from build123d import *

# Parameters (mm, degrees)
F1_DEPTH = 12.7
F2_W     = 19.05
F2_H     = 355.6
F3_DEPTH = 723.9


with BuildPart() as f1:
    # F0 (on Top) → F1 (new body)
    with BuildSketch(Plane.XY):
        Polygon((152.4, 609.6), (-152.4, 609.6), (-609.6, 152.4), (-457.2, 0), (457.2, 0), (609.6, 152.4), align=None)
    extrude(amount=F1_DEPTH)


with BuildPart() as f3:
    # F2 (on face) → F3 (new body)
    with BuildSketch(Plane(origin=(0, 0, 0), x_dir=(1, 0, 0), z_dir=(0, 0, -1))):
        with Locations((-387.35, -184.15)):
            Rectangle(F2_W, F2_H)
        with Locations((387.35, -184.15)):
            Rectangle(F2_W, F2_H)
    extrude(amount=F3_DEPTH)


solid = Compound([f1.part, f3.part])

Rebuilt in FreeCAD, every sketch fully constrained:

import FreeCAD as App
import Part
import Sketcher
Q = App.Units.Quantity


def add_polygon(sketch, points):
    """Adds a closed chain of lines whose ends are joined by coincident constraints."""
    first, n = sketch.GeometryCount, len(points)
    for a, b in zip(points, points[1:] + points[:1]):
        sketch.addGeometry(Part.LineSegment(App.Vector(*a, 0), App.Vector(*b, 0)), False)
    for i in range(n):
        sketch.addConstraint(Sketcher.Constraint("Coincident", first + i, 2, first + (i + 1) % n, 1))

doc = App.newDocument("Part")
params = doc.addObject("Spreadsheet::Sheet", "Params")
for row, (alias, value) in enumerate([
    ("sketch1_width", "12 in"),
    ("sketch1_width2", "36 in"),
    ("pad1_length", "0.5 in"),
    ("sketch2_height", "14 in"),
    ("sketch2_width", "0.75 in"),
    ("pad2_length", "28.5 in"),
], start=1):
    params.set(f"A{row}", alias)
    params.set(f"B{row}", "=" + value)
    params.setAlias(f"B{row}", alias)

body = doc.addObject("PartDesign::Body", "Body")

# Sketch on XY plane
sketch1 = body.newObject("Sketcher::SketchObject", "Sketch")
sketch1.AttachmentSupport = (doc.getObject("XY_Plane"), [""])
sketch1.MapMode = "FlatFace"
add_polygon(sketch1, [(152, 610), (-152, 610), (-610, 152), (-457, 0), (457, 0), (610, 152)])  # lines 0-5
sketch1.addConstraint(Sketcher.Constraint("Horizontal", 0))
sketch1.addConstraint(Sketcher.Constraint("Horizontal", 3))
sketch1.addConstraint(Sketcher.Constraint("Symmetric", 2, 2, 3, 2, -1, 1))
sketch1.addConstraint(Sketcher.Constraint("Symmetric", 1, 2, 4, 2, -2))
sketch1.addConstraint(Sketcher.Constraint("Perpendicular", 1, 2))
sketch1.addConstraint(Sketcher.Constraint("Perpendicular", 2, 4))
sketch1.addConstraint(Sketcher.Constraint("Perpendicular", 4, 5))
sketch1.addConstraint(Sketcher.Constraint("DistanceX", 0, 2, 0, 1, Q("12 in")))
sketch1.addConstraint(Sketcher.Constraint("DistanceX", 3, 1, 3, 2, Q("36 in")))
sketch1.addConstraint(Sketcher.Constraint("DistanceY", -1, 1, 0, 2, Q("24 in")))
sketch1.setExpression("Constraints[13]", "Params.sketch1_width")
sketch1.setExpression("Constraints[14]", "Params.sketch1_width2")
pad1 = body.newObject("PartDesign::Pad", "Pad")
pad1.Profile = sketch1
pad1.setExpression("Length", "Params.pad1_length")
body2 = doc.addObject("PartDesign::Body", "Body001")
body2.AllowCompound = True

# Sketch on XY plane
sketch2 = body2.newObject("Sketcher::SketchObject", "Sketch001")
sketch2.AttachmentSupport = (doc.getObject("XY_Plane001"), [""])
sketch2.MapMode = "FlatFace"
add_polygon(sketch2, [(-397, 6), (-397, 362), (-378, 362), (-378, 6)])  # lines 0-3
add_polygon(sketch2, [(378, 6), (378, 362), (397, 362), (397, 6)])  # lines 4-7
sketch2.addConstraint(Sketcher.Constraint("Vertical", 0))
sketch2.addConstraint(Sketcher.Constraint("Horizontal", 1))
sketch2.addConstraint(Sketcher.Constraint("Vertical", 2))
sketch2.addConstraint(Sketcher.Constraint("Horizontal", 3))
sketch2.addConstraint(Sketcher.Constraint("Vertical", 4))
sketch2.addConstraint(Sketcher.Constraint("Horizontal", 5))
sketch2.addConstraint(Sketcher.Constraint("Vertical", 6))
sketch2.addConstraint(Sketcher.Constraint("Horizontal", 7))
sketch2.addConstraint(Sketcher.Constraint("Symmetric", 1, 2, 4, 2, -2))
sketch2.addConstraint(Sketcher.Constraint("Symmetric", 3, 2, 6, 2, -2))
sketch2.addConstraint(Sketcher.Constraint("DistanceY", 0, 1, 0, 2, Q("14 in")))
sketch2.addConstraint(Sketcher.Constraint("DistanceX", 1, 1, 1, 2, Q("0.75 in")))
sketch2.addConstraint(Sketcher.Constraint("DistanceX", 0, 2, 4, 2, Q("30.5 in")))
sketch2.addConstraint(Sketcher.Constraint("DistanceY", -1, 1, 0, 2, Q("14.25 in")))
sketch2.setExpression("Constraints[18]", "Params.sketch2_height")
sketch2.setExpression("Constraints[19]", "Params.sketch2_width")
pad2 = body2.newObject("PartDesign::Pad", "Pad001")
pad2.Profile = sketch2
pad2.setExpression("Length", "Params.pad2_length")
pad2.Reversed = True

doc.recompute()
